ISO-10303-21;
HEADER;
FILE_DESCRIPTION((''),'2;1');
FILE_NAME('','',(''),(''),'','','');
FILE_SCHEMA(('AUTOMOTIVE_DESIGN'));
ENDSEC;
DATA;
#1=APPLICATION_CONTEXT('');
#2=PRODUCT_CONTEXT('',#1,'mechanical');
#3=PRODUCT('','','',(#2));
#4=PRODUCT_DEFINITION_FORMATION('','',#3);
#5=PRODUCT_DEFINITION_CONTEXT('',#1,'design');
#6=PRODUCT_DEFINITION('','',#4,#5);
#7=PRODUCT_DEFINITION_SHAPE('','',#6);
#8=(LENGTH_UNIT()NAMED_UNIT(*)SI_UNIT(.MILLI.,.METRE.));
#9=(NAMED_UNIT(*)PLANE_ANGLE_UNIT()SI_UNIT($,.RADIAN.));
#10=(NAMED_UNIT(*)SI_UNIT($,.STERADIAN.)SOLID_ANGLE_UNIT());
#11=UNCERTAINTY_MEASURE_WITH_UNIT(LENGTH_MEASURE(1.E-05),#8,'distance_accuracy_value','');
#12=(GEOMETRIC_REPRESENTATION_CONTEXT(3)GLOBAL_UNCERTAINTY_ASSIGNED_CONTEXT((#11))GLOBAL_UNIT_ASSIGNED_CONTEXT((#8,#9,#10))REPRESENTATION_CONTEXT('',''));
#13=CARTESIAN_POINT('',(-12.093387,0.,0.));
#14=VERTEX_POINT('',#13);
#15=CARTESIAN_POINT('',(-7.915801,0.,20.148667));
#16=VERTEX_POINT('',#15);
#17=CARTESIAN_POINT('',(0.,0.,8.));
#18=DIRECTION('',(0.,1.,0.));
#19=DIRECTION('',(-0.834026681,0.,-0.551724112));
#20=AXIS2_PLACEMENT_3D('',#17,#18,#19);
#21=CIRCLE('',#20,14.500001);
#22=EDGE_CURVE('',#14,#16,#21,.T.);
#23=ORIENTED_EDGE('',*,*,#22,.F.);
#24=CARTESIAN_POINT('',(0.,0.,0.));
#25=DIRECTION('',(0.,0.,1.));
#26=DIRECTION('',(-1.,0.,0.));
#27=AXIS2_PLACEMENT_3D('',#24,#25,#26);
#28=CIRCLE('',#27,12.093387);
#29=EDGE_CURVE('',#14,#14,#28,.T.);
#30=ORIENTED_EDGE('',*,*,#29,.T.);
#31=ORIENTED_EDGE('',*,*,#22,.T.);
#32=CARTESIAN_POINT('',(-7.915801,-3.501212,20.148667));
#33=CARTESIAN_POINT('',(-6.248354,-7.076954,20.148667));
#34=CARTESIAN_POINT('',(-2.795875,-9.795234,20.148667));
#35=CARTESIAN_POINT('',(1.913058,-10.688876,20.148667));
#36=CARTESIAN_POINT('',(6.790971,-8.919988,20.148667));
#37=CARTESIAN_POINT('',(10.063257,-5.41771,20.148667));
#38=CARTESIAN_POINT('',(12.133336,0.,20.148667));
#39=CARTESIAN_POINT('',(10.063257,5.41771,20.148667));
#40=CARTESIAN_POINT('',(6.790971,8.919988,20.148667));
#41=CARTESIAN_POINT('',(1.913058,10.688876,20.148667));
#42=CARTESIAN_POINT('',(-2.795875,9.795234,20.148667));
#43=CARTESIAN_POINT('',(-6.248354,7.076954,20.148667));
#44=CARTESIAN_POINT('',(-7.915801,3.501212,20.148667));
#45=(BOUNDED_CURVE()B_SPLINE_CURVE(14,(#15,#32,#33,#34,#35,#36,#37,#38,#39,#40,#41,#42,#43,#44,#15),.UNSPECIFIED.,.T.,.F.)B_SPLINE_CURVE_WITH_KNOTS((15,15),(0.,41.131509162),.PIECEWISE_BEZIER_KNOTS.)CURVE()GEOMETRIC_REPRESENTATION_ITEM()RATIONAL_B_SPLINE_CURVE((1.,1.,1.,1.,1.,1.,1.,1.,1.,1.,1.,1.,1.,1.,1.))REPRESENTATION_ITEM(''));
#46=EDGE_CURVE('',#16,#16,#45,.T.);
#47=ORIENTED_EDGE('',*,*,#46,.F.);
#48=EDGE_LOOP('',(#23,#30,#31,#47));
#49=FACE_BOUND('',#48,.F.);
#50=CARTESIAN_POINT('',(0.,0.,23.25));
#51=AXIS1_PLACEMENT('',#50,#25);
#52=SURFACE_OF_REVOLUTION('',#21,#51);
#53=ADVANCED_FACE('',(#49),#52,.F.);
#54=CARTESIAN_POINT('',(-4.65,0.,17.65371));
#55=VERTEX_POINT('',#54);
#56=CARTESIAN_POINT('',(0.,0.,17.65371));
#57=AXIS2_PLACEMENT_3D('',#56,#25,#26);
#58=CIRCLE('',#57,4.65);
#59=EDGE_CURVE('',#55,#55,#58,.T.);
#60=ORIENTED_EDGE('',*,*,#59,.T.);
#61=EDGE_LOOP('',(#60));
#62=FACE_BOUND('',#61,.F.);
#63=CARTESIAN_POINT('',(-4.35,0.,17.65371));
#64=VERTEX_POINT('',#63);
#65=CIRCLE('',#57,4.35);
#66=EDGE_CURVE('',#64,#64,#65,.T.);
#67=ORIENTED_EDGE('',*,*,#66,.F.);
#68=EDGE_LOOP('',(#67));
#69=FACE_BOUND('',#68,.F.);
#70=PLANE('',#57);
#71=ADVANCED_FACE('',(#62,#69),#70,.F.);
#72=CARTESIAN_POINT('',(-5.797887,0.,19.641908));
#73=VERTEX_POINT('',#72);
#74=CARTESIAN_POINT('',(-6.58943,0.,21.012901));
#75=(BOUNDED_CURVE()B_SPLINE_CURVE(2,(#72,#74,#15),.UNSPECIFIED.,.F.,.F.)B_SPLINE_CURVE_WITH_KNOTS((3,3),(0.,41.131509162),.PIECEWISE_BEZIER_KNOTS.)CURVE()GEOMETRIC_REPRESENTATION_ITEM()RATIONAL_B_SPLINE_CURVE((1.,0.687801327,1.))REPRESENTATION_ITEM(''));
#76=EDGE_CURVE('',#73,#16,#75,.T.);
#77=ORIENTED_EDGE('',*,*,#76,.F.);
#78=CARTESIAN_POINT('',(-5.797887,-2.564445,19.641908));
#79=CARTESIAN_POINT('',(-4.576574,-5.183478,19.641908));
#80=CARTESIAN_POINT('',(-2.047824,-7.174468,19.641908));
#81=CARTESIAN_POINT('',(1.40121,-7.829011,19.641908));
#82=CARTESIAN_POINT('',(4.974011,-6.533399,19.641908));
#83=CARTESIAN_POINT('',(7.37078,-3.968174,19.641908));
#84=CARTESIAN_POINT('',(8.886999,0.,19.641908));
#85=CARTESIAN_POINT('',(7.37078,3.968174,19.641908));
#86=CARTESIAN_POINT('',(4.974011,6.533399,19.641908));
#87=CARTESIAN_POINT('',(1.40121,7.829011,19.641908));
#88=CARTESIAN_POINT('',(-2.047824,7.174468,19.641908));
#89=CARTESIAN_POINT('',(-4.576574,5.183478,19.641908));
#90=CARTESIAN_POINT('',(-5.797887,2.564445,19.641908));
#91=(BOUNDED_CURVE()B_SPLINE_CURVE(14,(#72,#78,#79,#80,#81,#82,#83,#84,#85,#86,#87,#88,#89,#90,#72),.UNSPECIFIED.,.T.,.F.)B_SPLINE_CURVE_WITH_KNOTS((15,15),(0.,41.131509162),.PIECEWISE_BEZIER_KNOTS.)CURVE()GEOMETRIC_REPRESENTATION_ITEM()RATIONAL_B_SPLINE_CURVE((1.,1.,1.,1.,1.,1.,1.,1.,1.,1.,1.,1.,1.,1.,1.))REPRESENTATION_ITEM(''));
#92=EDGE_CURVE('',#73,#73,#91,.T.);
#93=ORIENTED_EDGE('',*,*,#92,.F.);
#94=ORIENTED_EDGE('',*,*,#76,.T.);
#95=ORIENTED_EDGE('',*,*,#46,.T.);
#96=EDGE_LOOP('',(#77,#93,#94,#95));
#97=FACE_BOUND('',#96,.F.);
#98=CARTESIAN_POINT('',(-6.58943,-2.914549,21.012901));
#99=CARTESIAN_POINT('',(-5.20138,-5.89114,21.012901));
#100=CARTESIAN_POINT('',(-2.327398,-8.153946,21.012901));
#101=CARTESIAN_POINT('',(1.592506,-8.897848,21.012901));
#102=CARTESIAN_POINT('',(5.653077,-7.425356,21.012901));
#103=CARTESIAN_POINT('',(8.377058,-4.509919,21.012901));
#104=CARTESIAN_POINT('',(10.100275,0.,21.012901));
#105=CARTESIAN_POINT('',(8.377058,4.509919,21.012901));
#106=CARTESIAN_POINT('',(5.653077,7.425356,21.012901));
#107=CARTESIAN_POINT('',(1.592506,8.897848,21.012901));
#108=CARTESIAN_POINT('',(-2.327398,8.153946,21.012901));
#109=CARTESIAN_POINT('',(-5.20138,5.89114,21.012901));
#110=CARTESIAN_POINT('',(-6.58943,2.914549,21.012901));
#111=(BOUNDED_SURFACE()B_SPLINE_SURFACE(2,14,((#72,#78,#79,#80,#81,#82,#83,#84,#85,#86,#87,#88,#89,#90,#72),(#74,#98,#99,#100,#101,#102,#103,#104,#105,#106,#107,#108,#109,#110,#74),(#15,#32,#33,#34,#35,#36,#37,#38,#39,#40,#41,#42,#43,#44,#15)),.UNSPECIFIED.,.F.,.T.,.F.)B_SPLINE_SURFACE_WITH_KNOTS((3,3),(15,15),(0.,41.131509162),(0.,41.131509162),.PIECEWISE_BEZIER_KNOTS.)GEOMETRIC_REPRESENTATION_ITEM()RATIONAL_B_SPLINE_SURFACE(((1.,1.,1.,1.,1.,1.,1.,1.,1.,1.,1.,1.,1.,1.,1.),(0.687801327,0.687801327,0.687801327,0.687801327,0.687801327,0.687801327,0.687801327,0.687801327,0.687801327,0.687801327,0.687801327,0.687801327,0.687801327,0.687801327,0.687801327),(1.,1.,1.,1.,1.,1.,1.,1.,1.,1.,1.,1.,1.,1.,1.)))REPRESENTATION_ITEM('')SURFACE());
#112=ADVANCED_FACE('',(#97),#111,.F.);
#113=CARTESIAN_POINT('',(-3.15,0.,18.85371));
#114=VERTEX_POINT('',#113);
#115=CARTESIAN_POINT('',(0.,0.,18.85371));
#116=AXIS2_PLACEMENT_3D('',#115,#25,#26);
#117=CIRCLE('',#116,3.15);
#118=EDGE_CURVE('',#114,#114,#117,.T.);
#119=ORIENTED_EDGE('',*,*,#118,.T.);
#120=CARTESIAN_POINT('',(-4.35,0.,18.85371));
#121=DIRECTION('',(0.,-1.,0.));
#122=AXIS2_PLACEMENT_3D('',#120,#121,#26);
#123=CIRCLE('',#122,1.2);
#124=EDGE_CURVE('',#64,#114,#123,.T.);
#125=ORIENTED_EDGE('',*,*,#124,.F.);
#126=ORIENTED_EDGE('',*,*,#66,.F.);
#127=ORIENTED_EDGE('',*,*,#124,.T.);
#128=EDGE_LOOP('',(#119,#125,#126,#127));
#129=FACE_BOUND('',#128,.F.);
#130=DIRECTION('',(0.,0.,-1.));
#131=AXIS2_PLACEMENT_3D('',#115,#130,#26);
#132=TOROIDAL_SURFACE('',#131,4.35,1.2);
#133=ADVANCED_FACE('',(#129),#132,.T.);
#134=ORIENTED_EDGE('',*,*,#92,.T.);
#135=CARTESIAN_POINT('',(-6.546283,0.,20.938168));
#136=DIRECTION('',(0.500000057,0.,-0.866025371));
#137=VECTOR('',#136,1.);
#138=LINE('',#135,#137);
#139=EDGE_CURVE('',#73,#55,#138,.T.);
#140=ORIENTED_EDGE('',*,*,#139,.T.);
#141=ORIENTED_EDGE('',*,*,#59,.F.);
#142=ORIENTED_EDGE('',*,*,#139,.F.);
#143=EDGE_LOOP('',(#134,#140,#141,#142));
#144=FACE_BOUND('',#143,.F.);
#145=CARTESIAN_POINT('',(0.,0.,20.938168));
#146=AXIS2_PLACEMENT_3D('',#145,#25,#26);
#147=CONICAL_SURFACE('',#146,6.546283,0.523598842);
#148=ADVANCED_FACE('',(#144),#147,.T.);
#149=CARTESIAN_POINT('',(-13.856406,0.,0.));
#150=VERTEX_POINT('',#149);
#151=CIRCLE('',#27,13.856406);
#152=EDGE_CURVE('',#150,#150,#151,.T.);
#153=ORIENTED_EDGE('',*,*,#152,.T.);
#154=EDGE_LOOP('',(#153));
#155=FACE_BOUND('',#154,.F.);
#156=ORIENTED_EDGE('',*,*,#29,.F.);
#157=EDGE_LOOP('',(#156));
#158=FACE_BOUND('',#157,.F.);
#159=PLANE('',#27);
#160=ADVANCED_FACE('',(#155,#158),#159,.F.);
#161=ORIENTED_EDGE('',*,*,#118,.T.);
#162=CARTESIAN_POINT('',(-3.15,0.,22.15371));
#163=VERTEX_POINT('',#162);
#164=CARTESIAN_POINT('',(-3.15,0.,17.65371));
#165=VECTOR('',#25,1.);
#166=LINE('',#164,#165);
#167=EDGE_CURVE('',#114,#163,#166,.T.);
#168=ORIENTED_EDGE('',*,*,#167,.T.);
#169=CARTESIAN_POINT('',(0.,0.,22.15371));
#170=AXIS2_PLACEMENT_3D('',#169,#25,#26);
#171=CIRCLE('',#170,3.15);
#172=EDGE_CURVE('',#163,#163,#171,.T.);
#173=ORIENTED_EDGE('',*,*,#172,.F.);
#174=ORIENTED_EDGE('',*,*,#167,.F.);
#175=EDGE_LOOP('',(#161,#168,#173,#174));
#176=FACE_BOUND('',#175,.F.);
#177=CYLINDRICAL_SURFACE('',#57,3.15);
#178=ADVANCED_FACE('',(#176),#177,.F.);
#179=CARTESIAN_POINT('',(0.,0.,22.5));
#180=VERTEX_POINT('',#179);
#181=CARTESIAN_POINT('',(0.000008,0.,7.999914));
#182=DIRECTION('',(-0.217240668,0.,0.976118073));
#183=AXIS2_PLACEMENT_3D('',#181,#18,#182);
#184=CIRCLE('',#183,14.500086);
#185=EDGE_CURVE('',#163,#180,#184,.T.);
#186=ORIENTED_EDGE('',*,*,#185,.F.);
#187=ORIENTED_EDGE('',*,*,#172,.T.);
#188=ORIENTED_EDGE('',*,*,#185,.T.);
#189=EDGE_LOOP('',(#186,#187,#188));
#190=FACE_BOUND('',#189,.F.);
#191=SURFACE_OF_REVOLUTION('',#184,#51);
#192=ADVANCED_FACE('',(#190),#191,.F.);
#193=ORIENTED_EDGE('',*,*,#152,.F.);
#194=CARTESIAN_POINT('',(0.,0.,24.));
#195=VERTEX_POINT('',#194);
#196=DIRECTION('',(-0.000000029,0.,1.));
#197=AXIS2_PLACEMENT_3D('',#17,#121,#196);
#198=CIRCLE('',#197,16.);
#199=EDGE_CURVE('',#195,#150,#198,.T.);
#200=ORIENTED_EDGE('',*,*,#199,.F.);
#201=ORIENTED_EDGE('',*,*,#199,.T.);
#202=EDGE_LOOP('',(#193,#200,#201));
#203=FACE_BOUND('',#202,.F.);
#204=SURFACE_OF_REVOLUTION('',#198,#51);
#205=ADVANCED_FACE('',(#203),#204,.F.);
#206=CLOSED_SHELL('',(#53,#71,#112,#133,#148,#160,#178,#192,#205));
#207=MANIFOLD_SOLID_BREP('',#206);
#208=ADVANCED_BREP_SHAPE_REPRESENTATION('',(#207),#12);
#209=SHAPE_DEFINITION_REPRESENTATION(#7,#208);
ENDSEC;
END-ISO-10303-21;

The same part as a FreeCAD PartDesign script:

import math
import FreeCAD as App
import Part
import Sketcher

V = App.Vector
Q = App.Units.Quantity


def edges_at(feature, points):
    """Names of the edges that pass closest to the given points."""
    edges = feature.Shape.Edges
    near = lambda p: min(range(len(edges)), key=lambda i: edges[i].distToShape(Part.Vertex(*p))[0])
    return sorted({f"Edge{near(p) + 1}" for p in points})

doc = App.newDocument("Part")
params = doc.addObject("Spreadsheet::Sheet", "Params")
for row, (alias, value) in enumerate([
    ("sketch1_radius", "16 mm"),
    ("sketch1_radius2", "14.500001 mm"),
    ("sketch1_width", "1.5 mm"),
    ("sketch1_height", "4.5 mm"),
    ("revolution_angle", "360 deg"),
    ("fillet_radius", "1.2 mm"),
    ("fillet2_radius", "1.5 mm"),
], start=1):
    params.set(f"A{row}", alias)
    params.set(f"B{row}", "=" + value)
    params.setAlias(f"B{row}", alias)

body = doc.addObject("PartDesign::Body", "Body")

sketch1 = body.newObject("Sketcher::SketchObject", "Sketch")
sketch1.AttachmentSupport = (doc.getObject("XZ_Plane"), [""])
sketch1.MapMode = "FlatFace"
sketch1.addGeometry([
    Part.LineSegment(V(0, 22.5, 0), V(0, 24, 0)),
    Part.ArcOfCircle(Part.Circle(V(0, 8, 0), V(0, 0, 1), 16), math.radians(90.000002), math.radians(210)),
    Part.LineSegment(V(-13.856406, 0, 0), V(-12.093387, 0, 0)),
    Part.ArcOfCircle(Part.Circle(V(0, 8, 0), V(0, 0, 1), 14.500001), math.radians(116.837896), math.radians(213.485375)),
    Part.LineSegment(V(-6.546283, 20.938168, 0), V(-4.65, 17.65371, 0)),
    Part.LineSegment(V(-4.65, 17.65371, 0), V(-3.15, 17.65371, 0)),
    Part.LineSegment(V(-3.15, 17.65371, 0), V(-3.15, 22.15371, 0)),
    Part.ArcOfCircle(Part.Circle(V(0.000008, 7.999914, 0), V(0, 0, 1), 14.500086), math.radians(90.000033), math.radians(102.547016)),
], False)
sketch1.addConstraint([
    Sketcher.Constraint("Coincident", 0, 2, 1, 1),
    Sketcher.Constraint("Coincident", 1, 2, 2, 1),
    Sketcher.Constraint("Coincident", 2, 2, 3, 2),
    Sketcher.Constraint("Coincident", 3, 1, 4, 1),
    Sketcher.Constraint("Coincident", 4, 2, 5, 1),
    Sketcher.Constraint("Coincident", 5, 2, 6, 1),
    Sketcher.Constraint("Coincident", 6, 2, 7, 2),
    Sketcher.Constraint("Coincident", 7, 1, 0, 1),
    Sketcher.Constraint("Vertical", 0),
    Sketcher.Constraint("Horizontal", 2),
    Sketcher.Constraint("Horizontal", 5),
    Sketcher.Constraint("Vertical", 6),
    Sketcher.Constraint("Coincident", 3, 3, 1, 3),
    Sketcher.Constraint("PointOnObject", 1, 3, -2),
    Sketcher.Constraint("PointOnObject", 0, 2, -2),
    Sketcher.Constraint("PointOnObject", 1, 2, -1),
    Sketcher.Constraint("Equal", 5, 0),
    Sketcher.Constraint("Radius", 1, 16.0),
    Sketcher.Constraint("Radius", 3, 14.500001),
    Sketcher.Constraint("Angle", 4, Q("-59.999996 deg")),
    Sketcher.Constraint("DistanceX", 5, 1, 5, 2, 1.5),
    Sketcher.Constraint("DistanceY", 6, 1, 6, 2, 4.5),
    Sketcher.Constraint("DistanceY", -1, 1, 1, 3, 8.0),
    Sketcher.Constraint("DistanceX", 4, 2, -1, 1, 4.65),
    Sketcher.Constraint("Radius", 7, 14.500086),
    Sketcher.Constraint("DistanceY", -1, 1, 4, 2, 17.65371),
])
sketch1.setExpression("Constraints[17]", "Params.sketch1_radius")
sketch1.setExpression("Constraints[18]", "Params.sketch1_radius2")
sketch1.setExpression("Constraints[20]", "Params.sketch1_width")
sketch1.setExpression("Constraints[21]", "Params.sketch1_height")
revolution = body.newObject("PartDesign::Revolution", "Revolution")
revolution.Profile = sketch1
revolution.ReferenceAxis = (sketch1, ["V_Axis"])
revolution.setExpression("Angle", "Params.revolution_angle")
doc.recompute()

fillet = body.newObject("PartDesign::Fillet", "Fillet")
fillet.Base = (revolution, edges_at(revolution, [(3.15, 0, 17.654)]))
fillet.setExpression("Radius", "Params.fillet_radius")
doc.recompute()

fillet2 = body.newObject("PartDesign::Fillet", "Fillet001")
fillet2.Base = (fillet, edges_at(fillet, [(6.546, 0, 20.938)]))
fillet2.setExpression("Radius", "Params.fillet2_radius")

doc.recompute()
